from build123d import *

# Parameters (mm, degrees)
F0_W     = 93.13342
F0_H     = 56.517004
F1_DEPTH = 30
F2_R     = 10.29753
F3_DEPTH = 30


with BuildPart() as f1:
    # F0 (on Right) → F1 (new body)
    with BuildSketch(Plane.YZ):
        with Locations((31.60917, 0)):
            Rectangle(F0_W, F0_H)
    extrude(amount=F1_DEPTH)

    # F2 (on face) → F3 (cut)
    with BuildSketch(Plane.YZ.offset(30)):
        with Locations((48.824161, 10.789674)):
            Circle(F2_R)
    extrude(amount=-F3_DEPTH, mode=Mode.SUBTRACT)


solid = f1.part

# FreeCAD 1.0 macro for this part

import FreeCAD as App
import Part
import Sketcher
from FreeCAD import Vector


def add_polygon(sketch, points):
    """Adds a closed chain of lines whose ends are joined by coincident constraints."""
    first, n = sketch.GeometryCount, len(points)
    for a, b in zip(points, points[1:] + points[:1]):
        sketch.addGeometry(Part.LineSegment(App.Vector(*a, 0), App.Vector(*b, 0)), False)
    for i in range(n):
        sketch.addConstraint(Sketcher.Constraint("Coincident", first + i, 2, first + (i + 1) % n, 1))

doc = App.newDocument("Part")
body = doc.addObject("PartDesign::Body", "Body")

# Sketch on YZ plane
sketch1 = body.newObject("Sketcher::SketchObject", "Sketch")
sketch1.AttachmentSupport = (doc.getObject("YZ_Plane"), [""])
sketch1.MapMode = "FlatFace"
add_polygon(sketch1, [(-15, 28), (-15, -28), (78, -28), (78, 28)])  # lines 0-3
sketch1.addConstraint([
    Sketcher.Constraint("Vertical", 0),
    Sketcher.Constraint("Horizontal", 1),
    Sketcher.Constraint("Vertical", 2),
    Sketcher.Constraint("Horizontal", 3),
    Sketcher.Constraint("DistanceX", 1, 1, 1, 2, 93.13342),
    Sketcher.Constraint("DistanceY", 0, 2, -1, 1, 28.258502),
    Sketcher.Constraint("DistanceY", -1, 1, 2, 2, 28.258502),
    Sketcher.Constraint("DistanceX", 0, 2, -1, 1, 14.95754),
])
pad1 = body.newObject("PartDesign::Pad", "Pad")
pad1.Profile = sketch1
pad1.Length = 30

# Sketch on YZ plane
sketch2 = body.newObject("Sketcher::SketchObject", "Sketch001")
sketch2.AttachmentSupport = (doc.getObject("YZ_Plane"), [""])
sketch2.MapMode = "FlatFace"
sketch2.AttachmentOffset = App.Placement(Vector(0, 0, 30), App.Rotation())
sketch2.addGeometry(Part.Circle(Vector(49, 11, 0), Vector(0, 0, 1), 10), False)
sketch2.addConstraint([
    Sketcher.Constraint("Diameter", 0, 20.59506),
    Sketcher.Constraint("DistanceX", -1, 1, 0, 3, 48.824161),
    Sketcher.Constraint("DistanceY", -1, 1, 0, 3, 10.789674),
])
pocket1 = body.newObject("PartDesign::Pocket", "Pocket")
pocket1.Profile = sketch2
pocket1.Length = 30

doc.recompute()
